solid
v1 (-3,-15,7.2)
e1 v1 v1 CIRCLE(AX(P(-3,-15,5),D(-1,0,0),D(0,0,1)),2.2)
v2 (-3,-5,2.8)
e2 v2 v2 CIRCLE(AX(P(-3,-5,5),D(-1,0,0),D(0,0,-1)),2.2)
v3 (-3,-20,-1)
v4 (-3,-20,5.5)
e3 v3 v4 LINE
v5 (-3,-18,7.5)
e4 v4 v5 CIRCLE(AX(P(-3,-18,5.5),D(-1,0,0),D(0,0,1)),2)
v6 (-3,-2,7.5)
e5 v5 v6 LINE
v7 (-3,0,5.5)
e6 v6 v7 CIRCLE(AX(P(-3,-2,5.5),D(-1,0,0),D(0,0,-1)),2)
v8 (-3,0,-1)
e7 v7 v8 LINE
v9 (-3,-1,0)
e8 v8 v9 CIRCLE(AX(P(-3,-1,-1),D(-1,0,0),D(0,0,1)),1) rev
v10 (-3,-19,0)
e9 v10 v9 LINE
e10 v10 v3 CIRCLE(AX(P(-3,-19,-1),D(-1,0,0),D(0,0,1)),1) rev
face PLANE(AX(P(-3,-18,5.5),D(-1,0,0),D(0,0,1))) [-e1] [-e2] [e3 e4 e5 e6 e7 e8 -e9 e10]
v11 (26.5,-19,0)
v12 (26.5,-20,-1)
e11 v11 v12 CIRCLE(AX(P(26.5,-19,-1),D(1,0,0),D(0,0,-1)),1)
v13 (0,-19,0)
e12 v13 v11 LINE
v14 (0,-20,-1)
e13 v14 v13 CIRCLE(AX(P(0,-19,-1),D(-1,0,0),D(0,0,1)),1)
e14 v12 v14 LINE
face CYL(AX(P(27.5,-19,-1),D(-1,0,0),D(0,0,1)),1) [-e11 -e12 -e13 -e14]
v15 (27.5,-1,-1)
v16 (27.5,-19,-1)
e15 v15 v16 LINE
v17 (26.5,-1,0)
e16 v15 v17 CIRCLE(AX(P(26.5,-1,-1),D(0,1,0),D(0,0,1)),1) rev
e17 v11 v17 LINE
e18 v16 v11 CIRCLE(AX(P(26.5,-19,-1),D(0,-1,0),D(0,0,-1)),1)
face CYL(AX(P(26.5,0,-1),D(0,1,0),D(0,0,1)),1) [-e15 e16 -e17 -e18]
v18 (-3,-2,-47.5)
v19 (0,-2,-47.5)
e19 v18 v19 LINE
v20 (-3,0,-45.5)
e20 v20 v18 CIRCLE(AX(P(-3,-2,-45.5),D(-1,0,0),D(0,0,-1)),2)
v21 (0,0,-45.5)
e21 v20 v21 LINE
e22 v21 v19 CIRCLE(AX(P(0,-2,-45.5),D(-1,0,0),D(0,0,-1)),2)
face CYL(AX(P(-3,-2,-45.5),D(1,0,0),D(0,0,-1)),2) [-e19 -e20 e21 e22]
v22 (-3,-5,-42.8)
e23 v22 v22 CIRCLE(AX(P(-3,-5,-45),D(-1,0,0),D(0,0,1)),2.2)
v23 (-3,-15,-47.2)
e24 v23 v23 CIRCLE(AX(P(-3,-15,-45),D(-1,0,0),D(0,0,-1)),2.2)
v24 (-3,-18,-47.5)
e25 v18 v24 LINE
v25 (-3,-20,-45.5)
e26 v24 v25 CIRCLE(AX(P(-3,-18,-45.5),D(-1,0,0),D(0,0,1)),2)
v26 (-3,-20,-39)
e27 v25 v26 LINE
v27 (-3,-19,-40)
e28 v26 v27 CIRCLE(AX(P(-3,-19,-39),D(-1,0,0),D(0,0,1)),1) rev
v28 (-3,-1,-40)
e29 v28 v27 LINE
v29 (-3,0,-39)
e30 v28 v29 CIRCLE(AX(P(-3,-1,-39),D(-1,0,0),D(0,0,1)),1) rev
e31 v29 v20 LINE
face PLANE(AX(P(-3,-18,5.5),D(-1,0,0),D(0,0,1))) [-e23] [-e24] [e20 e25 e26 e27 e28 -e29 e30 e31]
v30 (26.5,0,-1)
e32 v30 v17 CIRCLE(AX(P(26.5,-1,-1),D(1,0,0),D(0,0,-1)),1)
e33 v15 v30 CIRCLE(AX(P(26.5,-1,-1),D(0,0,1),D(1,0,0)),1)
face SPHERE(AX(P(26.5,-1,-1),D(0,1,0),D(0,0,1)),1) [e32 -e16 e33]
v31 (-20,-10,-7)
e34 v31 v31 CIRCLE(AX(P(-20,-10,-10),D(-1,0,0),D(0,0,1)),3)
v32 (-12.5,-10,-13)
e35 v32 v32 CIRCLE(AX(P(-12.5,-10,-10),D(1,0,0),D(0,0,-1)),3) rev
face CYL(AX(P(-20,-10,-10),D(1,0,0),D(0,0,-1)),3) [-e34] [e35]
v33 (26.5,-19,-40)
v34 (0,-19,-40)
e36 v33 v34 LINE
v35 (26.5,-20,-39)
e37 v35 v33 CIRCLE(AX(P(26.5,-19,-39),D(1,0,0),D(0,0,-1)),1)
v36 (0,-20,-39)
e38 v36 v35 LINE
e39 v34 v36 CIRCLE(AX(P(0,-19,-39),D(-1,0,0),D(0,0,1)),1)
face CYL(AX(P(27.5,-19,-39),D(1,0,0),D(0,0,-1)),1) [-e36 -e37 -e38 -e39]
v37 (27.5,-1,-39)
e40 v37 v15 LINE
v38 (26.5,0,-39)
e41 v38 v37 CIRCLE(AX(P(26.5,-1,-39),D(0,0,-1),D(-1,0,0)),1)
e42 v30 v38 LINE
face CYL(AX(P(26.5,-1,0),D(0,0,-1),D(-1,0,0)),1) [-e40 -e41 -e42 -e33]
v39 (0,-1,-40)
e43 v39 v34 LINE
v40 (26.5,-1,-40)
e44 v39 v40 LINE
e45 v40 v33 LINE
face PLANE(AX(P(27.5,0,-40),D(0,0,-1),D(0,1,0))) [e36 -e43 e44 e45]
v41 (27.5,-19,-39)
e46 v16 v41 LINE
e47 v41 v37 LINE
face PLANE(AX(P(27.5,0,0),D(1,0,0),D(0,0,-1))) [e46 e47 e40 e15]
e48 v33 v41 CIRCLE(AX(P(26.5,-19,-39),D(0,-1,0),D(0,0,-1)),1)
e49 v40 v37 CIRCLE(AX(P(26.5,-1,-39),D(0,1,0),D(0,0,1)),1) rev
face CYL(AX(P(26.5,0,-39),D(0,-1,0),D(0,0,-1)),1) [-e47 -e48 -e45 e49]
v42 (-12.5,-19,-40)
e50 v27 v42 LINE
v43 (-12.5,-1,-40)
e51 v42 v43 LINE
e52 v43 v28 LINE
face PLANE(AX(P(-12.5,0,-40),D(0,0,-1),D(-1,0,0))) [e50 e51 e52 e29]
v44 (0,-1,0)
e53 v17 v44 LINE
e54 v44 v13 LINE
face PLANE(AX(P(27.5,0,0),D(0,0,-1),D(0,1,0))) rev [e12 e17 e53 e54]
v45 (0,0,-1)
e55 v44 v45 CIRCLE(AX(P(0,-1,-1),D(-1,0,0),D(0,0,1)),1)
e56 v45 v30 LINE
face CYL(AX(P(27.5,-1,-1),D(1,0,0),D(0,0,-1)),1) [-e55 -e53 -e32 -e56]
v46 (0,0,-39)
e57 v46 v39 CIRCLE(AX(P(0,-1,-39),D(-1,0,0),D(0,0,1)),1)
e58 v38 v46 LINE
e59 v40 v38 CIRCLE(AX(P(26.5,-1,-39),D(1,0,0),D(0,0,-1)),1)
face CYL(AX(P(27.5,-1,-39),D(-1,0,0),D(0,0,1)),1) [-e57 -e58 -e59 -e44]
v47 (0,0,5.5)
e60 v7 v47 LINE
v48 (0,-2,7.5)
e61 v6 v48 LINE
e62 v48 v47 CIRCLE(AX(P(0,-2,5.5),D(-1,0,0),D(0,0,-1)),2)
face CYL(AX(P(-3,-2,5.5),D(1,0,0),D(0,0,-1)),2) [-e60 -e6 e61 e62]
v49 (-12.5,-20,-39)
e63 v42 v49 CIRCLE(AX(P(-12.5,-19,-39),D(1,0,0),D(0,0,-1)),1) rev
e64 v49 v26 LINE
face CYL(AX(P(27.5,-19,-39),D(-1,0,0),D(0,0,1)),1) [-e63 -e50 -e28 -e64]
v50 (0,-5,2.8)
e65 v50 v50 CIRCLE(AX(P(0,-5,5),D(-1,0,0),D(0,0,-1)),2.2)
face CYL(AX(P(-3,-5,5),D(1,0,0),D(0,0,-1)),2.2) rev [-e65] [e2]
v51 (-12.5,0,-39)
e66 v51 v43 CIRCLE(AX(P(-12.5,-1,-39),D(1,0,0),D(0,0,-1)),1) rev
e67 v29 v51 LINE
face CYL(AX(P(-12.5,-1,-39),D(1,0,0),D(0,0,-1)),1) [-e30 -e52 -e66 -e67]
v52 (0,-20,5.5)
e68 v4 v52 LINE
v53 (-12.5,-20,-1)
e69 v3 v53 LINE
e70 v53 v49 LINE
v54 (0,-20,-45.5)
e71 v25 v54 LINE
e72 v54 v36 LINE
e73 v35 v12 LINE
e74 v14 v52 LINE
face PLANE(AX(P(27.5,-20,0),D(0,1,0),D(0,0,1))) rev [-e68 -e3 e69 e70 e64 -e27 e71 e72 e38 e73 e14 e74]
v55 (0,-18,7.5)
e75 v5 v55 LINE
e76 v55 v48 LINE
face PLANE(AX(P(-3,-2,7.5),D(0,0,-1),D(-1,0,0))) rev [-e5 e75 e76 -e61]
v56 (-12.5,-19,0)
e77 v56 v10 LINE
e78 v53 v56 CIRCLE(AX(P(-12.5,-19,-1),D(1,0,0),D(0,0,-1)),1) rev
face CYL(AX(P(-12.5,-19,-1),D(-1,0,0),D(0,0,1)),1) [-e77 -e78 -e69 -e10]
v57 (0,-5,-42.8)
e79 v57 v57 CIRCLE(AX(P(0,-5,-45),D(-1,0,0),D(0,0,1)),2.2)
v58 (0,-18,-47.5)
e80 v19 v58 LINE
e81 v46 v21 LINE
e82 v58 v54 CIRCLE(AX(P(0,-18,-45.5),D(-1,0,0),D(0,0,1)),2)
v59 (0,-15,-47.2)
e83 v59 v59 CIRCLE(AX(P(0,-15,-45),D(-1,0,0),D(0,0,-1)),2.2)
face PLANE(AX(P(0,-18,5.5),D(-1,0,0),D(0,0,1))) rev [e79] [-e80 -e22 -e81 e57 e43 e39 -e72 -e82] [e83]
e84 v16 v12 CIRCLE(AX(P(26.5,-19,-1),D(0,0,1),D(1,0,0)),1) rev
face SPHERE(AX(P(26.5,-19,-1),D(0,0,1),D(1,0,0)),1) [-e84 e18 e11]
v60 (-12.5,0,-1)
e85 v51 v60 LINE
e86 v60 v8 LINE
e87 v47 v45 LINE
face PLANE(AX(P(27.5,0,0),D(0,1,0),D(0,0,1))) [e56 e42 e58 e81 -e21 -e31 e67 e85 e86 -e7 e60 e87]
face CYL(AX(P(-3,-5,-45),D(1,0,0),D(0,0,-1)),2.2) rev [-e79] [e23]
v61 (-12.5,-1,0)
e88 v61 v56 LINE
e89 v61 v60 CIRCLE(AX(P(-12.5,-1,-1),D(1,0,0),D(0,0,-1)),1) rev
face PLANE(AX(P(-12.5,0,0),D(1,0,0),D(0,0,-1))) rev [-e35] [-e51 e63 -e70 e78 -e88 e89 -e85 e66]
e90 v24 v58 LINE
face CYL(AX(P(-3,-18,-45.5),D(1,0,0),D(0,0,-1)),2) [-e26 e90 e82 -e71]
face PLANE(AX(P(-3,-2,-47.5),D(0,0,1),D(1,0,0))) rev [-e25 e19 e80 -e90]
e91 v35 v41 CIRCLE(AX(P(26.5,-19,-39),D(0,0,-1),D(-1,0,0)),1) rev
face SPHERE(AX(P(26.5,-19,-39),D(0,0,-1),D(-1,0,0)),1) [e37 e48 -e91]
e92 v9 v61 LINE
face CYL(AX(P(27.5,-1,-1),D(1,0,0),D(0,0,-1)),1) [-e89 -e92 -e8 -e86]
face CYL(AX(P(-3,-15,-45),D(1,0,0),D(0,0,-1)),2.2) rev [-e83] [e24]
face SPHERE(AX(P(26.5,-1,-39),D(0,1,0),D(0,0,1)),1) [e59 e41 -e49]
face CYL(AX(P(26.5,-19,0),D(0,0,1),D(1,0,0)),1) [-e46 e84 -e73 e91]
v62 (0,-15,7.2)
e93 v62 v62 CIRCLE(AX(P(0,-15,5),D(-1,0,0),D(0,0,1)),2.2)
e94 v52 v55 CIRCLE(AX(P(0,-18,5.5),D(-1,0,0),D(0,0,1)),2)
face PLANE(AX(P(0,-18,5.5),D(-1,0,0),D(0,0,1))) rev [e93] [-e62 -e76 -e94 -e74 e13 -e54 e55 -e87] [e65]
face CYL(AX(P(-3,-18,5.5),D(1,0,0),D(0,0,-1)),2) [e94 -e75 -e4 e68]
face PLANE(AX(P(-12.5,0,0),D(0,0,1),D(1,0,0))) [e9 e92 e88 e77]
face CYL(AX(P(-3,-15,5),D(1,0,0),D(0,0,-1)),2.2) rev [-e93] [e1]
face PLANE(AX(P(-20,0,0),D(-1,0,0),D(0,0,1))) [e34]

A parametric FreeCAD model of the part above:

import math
import FreeCAD as App
import Part
import Sketcher

V = App.Vector


def edges_at(feature, points):
    """Names of the edges that pass closest to the given points."""
    edges = feature.Shape.Edges
    near = lambda p: min(range(len(edges)), key=lambda i: edges[i].distToShape(Part.Vertex(*p))[0])
    return sorted({f"Edge{near(p) + 1}" for p in points})


def add_polygon(sketch, points):
    """Adds a closed chain of lines whose ends are joined by coincident constraints."""
    first, n = sketch.GeometryCount, len(points)
    for a, b in zip(points, points[1:] + points[:1]):
        sketch.addGeometry(Part.LineSegment(App.Vector(*a, 0), App.Vector(*b, 0)), False)
    for i in range(n):
        sketch.addConstraint(Sketcher.Constraint("Coincident", first + i, 2, first + (i + 1) % n, 1))

doc = App.newDocument("Part")
body = doc.addObject("PartDesign::Body", "Body")

sketch1 = body.newObject("Sketcher::SketchObject", "Sketch")
sketch1.AttachmentSupport = (doc.getObject("YZ_Plane"), [""])
sketch1.MapMode = "FlatFace"
add_polygon(sketch1, [(0, -40), (0, 0), (-20, 0), (-20, -40)])
sketch1.addConstraint(Sketcher.Constraint("Vertical", 0))
sketch1.addConstraint(Sketcher.Constraint("Horizontal", 1))
sketch1.addConstraint(Sketcher.Constraint("Vertical", 2))
sketch1.addConstraint(Sketcher.Constraint("Horizontal", 3))
sketch1.addConstraint(Sketcher.Constraint("Coincident", 0, 2, -1, 1))
sketch1.addConstraint(Sketcher.Constraint("DistanceX", 1, 2, 1, 1, 20.0))
sketch1.addConstraint(Sketcher.Constraint("DistanceY", 0, 1, 0, 2, 40.0))
pad1 = body.newObject("PartDesign::Pad", "Pad")
pad1.Profile = sketch1
pad1.Length = 27.5

sketch2 = body.newObject("Sketcher::SketchObject", "Sketch001")
sketch2.AttachmentSupport = (doc.getObject("YZ_Plane"), [""])
sketch2.MapMode = "FlatFace"
sketch2.addGeometry(Part.LineSegment(V(0, 5.5, 0), V(0, -45.5, 0)), False)
sketch2.addGeometry(Part.ArcOfCircle(Part.Circle(V(-2, -45.5, 0), V(0, 0, 1), 2), math.radians(-90), math.radians(0)), False)
sketch2.addGeometry(Part.LineSegment(V(-2, -47.5, 0), V(-18, -47.5, 0)), False)
sketch2.addGeometry(Part.ArcOfCircle(Part.Circle(V(-18, -45.5, 0), V(0, 0, 1), 2), math.radians(-180), math.radians(-90)), False)
sketch2.addGeometry(Part.LineSegment(V(-20, -45.5, 0), V(-20, 5.5, 0)), False)
sketch2.addGeometry(Part.ArcOfCircle(Part.Circle(V(-18, 5.5, 0), V(0, 0, 1), 2), math.radians(90), math.radians(180)), False)
sketch2.addGeometry(Part.LineSegment(V(-18, 7.5, 0), V(-2, 7.5, 0)), False)
sketch2.addGeometry(Part.ArcOfCircle(Part.Circle(V(-2, 5.5, 0), V(0, 0, 1), 2), math.radians(0), math.radians(90)), False)
sketch2.addGeometry(Part.Circle(V(-15, -45, 0), V(0, 0, 1), 2.2), False)
sketch2.addGeometry(Part.Circle(V(-15, 5, 0), V(0, 0, 1), 2.2), False)
sketch2.addGeometry(Part.Circle(V(-5, -45, 0), V(0, 0, 1), 2.2), False)
sketch2.addGeometry(Part.Circle(V(-5, 5, 0), V(0, 0, 1), 2.2), False)
sketch2.addConstraint(Sketcher.Constraint("Tangent", 0, 2, 1, 2))
sketch2.addConstraint(Sketcher.Constraint("Tangent", 1, 1, 2, 1))
sketch2.addConstraint(Sketcher.Constraint("Tangent", 2, 2, 3, 2))
sketch2.addConstraint(Sketcher.Constraint("Tangent", 3, 1, 4, 1))
sketch2.addConstraint(Sketcher.Constraint("Tangent", 4, 2, 5, 2))
sketch2.addConstraint(Sketcher.Constraint("Tangent", 5, 1, 6, 1))
sketch2.addConstraint(Sketcher.Constraint("Tangent", 6, 2, 7, 2))
sketch2.addConstraint(Sketcher.Constraint("Tangent", 7, 1, 0, 1))
sketch2.addConstraint(Sketcher.Constraint("Vertical", 0))
sketch2.addConstraint(Sketcher.Constraint("Horizontal", 2))
sketch2.addConstraint(Sketcher.Constraint("Vertical", 4))
sketch2.addConstraint(Sketcher.Constraint("Horizontal", 6))
sketch2.addConstraint(Sketcher.Constraint("Equal", 1, 3))
sketch2.addConstraint(Sketcher.Constraint("Equal", 3, 5))
sketch2.addConstraint(Sketcher.Constraint("Equal", 5, 7))
sketch2.addConstraint(Sketcher.Constraint("Equal", 8, 9))
sketch2.addConstraint(Sketcher.Constraint("Equal", 9, 10))
sketch2.addConstraint(Sketcher.Constraint("Equal", 10, 11))
sketch2.addConstraint(Sketcher.Constraint("PointOnObject", 0, 2, -2))
sketch2.addConstraint(Sketcher.Constraint("Horizontal", 8, 3, 10, 3))
sketch2.addConstraint(Sketcher.Constraint("Horizontal", 9, 3, 11, 3))
sketch2.addConstraint(Sketcher.Constraint("Vertical", 8, 3, 9, 3))
sketch2.addConstraint(Sketcher.Constraint("Vertical", 10, 3, 11, 3))
sketch2.addConstraint(Sketcher.Constraint("Radius", 1, 2.0))
sketch2.addConstraint(Sketcher.Constraint("Diameter", 8, 4.4))
sketch2.addConstraint(Sketcher.Constraint("DistanceX", 2, 2, 2, 1, 16.0))
sketch2.addConstraint(Sketcher.Constraint("DistanceY", 0, 2, 0, 1, 51.0))
sketch2.addConstraint(Sketcher.Constraint("DistanceX", 8, 3, -1, 1, 15.0))
sketch2.addConstraint(Sketcher.Constraint("DistanceY", 8, 3, -1, 1, 45.0))
sketch2.addConstraint(Sketcher.Constraint("DistanceY", -1, 1, 9, 3, 5.0))
sketch2.addConstraint(Sketcher.Constraint("DistanceX", 10, 3, -1, 1, 5.0))
sketch2.addConstraint(Sketcher.Constraint("DistanceY", 1, 3, -1, 1, 45.5))
pad2 = body.newObject("PartDesign::Pad", "Pad001")
pad2.Profile = sketch2
pad2.Length = 3
pad2.Reversed = True

sketch3 = body.newObject("Sketcher::SketchObject", "Sketch002")
sketch3.AttachmentSupport = (doc.getObject("YZ_Plane"), [""])
sketch3.MapMode = "FlatFace"
sketch3.AttachmentOffset = App.Placement(V(0, 0, 27.5), App.Rotation())
add_polygon(sketch3, [(0, 0), (-20, 0), (-20, -40), (0, -40)])
sketch3.addConstraint(Sketcher.Constraint("Horizontal", 0))
sketch3.addConstraint(Sketcher.Constraint("Vertical", 1))
sketch3.addConstraint(Sketcher.Constraint("Horizontal", 2))
sketch3.addConstraint(Sketcher.Constraint("Vertical", 3))
sketch3.addConstraint(Sketcher.Constraint("Coincident", 3, 2, -1, 1))
sketch3.addConstraint(Sketcher.Constraint("DistanceX", 0, 2, 0, 1, 20.0))
sketch3.addConstraint(Sketcher.Constraint("DistanceY", 1, 2, 1, 1, 40.0))
pad3 = body.newObject("PartDesign::Pad", "Pad002")
pad3.Profile = sketch3
pad3.Length = 40
pad3.Reversed = True

sketch4 = body.newObject("Sketcher::SketchObject", "Sketch003")
sketch4.AttachmentSupport = (doc.getObject("YZ_Plane"), [""])
sketch4.MapMode = "FlatFace"
sketch4.AttachmentOffset = App.Placement(V(0, 0, -12.5), App.Rotation())
sketch4.addGeometry(Part.Circle(V(-10, -10, 0), V(0, 0, 1), 3), False)
sketch4.addConstraint(Sketcher.Constraint("Diameter", 0, 6.0))
sketch4.addConstraint(Sketcher.Constraint("DistanceX", 0, 3, -1, 1, 10.0))
sketch4.addConstraint(Sketcher.Constraint("DistanceY", 0, 3, -1, 1, 10.0))
pad4 = body.newObject("PartDesign::Pad", "Pad003")
pad4.Profile = sketch4
pad4.Length = 7.5
pad4.Reversed = True
doc.recompute()

fillet = body.newObject("PartDesign::Fillet", "Fillet")
fillet.Base = (pad4, edges_at(pad4, [
    (27.5, 0, -20),
    (27.5, -10, 0),
    (27.5, -20, -20),
    (-7.75, -20, 0),
    (-7.75, 0, 0),
    (-7.75, 0, -40),
    (-7.75, -20, -40),
    (27.5, -10, -40),
    (13.75, -20, -40),
    (13.75, -20, 0),
    (13.75, 0, 0),
    (13.75, 0, -40),
]))
fillet.Radius = 1

doc.recompute()
